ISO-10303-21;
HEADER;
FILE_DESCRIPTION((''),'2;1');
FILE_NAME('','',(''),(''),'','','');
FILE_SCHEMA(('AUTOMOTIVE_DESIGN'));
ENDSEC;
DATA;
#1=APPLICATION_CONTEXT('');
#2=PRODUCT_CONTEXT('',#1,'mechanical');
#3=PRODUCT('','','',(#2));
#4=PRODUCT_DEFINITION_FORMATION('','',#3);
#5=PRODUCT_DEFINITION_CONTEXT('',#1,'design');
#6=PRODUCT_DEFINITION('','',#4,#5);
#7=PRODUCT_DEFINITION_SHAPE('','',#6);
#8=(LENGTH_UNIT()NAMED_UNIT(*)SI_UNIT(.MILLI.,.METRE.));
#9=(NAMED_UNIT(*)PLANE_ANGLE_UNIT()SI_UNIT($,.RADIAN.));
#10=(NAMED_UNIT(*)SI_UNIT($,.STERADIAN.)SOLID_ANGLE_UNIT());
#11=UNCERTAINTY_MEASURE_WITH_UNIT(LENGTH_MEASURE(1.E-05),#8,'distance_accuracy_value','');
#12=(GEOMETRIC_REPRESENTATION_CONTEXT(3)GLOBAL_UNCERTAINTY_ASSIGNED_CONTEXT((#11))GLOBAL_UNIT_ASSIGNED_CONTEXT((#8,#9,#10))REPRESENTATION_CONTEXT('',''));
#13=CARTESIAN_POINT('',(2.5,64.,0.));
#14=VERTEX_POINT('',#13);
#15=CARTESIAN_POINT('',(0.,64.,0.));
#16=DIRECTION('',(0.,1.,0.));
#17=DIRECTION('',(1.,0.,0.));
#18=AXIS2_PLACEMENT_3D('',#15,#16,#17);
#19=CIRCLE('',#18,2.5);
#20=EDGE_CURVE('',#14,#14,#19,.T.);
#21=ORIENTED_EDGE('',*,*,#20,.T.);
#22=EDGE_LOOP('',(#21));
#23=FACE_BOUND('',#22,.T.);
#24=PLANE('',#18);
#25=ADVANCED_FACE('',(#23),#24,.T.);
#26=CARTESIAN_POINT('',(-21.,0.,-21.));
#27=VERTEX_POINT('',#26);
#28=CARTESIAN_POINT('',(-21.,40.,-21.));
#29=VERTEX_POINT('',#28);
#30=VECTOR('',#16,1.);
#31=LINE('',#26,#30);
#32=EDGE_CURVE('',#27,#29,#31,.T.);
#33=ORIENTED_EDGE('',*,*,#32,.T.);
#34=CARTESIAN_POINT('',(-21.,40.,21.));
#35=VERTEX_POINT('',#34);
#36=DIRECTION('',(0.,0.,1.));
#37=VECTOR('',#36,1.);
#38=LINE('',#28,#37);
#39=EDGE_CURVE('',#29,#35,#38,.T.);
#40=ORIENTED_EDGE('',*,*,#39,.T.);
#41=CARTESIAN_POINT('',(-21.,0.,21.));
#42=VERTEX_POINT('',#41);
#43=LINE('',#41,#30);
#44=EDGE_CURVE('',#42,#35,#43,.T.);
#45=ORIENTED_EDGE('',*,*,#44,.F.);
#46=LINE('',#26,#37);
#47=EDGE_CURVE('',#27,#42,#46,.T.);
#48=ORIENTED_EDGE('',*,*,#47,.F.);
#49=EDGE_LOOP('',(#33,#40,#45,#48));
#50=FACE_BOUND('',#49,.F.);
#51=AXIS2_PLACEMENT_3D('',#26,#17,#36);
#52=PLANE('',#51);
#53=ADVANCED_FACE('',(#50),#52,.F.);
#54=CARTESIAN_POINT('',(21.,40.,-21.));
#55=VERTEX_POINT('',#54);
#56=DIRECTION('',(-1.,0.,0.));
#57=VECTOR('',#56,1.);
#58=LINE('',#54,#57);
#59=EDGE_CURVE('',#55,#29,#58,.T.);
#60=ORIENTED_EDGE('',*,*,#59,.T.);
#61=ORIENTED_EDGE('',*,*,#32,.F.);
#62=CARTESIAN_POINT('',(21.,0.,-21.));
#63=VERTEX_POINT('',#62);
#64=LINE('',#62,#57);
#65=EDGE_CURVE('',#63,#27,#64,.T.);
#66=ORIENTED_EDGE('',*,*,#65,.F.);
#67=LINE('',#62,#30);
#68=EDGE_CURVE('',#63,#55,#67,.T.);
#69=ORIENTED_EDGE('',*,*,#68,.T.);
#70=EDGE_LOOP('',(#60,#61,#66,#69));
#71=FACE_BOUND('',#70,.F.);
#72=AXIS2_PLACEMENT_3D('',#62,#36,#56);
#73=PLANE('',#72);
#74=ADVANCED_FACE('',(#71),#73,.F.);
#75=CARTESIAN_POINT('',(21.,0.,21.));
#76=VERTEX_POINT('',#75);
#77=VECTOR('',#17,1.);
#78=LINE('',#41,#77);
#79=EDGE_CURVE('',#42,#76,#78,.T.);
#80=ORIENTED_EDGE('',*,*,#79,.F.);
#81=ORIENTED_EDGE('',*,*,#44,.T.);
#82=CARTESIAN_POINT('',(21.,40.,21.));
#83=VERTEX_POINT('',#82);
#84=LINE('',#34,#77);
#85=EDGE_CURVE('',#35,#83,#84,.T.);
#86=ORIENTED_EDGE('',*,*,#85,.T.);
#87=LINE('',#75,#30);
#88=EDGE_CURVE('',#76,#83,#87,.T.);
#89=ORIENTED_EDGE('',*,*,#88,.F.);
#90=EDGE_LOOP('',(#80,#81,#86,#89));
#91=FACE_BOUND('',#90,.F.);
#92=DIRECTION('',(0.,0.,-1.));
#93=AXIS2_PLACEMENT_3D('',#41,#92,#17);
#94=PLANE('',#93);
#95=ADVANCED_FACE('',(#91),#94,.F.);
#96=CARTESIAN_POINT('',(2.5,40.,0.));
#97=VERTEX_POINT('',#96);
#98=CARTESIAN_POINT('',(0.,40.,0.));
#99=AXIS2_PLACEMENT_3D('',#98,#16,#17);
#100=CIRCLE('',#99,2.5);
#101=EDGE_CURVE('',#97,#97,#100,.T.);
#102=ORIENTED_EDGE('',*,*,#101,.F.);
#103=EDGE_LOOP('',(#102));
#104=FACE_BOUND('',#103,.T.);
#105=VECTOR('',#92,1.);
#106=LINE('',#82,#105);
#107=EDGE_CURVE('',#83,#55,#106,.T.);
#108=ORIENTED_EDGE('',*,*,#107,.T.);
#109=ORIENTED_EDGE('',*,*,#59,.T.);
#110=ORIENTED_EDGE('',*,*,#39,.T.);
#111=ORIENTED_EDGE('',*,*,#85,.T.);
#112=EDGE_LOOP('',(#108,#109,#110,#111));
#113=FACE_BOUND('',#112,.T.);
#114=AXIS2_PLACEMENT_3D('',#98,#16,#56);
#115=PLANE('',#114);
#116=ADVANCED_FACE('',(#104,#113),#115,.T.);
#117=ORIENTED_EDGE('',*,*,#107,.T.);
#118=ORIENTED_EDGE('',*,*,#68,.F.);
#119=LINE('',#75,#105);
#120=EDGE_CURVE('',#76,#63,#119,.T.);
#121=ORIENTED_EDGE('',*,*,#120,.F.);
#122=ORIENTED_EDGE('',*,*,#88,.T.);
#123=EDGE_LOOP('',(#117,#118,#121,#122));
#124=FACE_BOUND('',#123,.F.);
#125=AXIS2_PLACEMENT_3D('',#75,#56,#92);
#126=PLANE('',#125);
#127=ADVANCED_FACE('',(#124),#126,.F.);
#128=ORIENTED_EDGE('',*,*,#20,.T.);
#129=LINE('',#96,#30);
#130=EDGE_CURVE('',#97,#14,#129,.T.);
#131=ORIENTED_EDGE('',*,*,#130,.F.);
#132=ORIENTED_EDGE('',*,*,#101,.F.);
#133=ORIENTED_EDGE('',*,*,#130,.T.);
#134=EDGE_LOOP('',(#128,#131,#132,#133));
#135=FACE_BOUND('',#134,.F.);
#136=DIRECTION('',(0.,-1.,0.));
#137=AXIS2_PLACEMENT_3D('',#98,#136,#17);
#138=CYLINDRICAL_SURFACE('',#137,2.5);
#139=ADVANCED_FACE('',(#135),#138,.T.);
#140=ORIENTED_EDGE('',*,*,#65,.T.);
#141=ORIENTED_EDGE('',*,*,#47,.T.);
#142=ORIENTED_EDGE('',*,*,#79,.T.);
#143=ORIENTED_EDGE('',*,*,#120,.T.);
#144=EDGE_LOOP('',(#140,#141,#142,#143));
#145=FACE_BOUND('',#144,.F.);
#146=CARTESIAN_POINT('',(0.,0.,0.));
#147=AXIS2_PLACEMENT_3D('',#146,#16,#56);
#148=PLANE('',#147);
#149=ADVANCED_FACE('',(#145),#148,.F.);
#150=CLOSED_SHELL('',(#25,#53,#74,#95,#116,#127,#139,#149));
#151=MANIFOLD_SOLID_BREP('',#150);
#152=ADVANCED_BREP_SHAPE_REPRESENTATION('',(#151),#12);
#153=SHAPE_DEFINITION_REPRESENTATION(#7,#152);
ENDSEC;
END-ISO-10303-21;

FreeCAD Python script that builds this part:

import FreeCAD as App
import Part
import Sketcher
from FreeCAD import Vector
Q = App.Units.Quantity


def add_polygon(sketch, points):
    """Adds a closed chain of lines whose ends are joined by coincident constraints."""
    first, n = sketch.GeometryCount, len(points)
    for a, b in zip(points, points[1:] + points[:1]):
        sketch.addGeometry(Part.LineSegment(App.Vector(*a, 0), App.Vector(*b, 0)), False)
    for i in range(n):
        sketch.addConstraint(Sketcher.Constraint("Coincident", first + i, 2, first + (i + 1) % n, 1))

doc = App.newDocument("Part")
body = doc.addObject("PartDesign::Body", "Body")

sketch1 = body.newObject("Sketcher::SketchObject", "Sketch")
sketch1.AttachmentSupport = (doc.getObject("XZ_Plane"), [""])
sketch1.MapMode = "FlatFace"
add_polygon(sketch1, [(-21, 21), (21, 21), (21, -21), (-21, -21)])
sketch1.addConstraint([
    Sketcher.Constraint("Horizontal", 0),
    Sketcher.Constraint("Vertical", 1),
    Sketcher.Constraint("Horizontal", 2),
    Sketcher.Constraint("Vertical", 3),
    Sketcher.Constraint("Symmetric", 0, 2, 2, 2, -1, 1),
    Sketcher.Constraint("Equal", 2, 1),
    Sketcher.Constraint("DistanceX", 0, 1, 0, 2, Q("42 mm")),
])
pad1 = body.newObject("PartDesign::Pad", "Pad")
pad1.Profile = sketch1
pad1.Length = 40
pad1.Reversed = True

sketch2 = body.newObject("Sketcher::SketchObject", "Sketch001")
sketch2.AttachmentSupport = (doc.getObject("XZ_Plane"), [""])
sketch2.MapMode = "FlatFace"
sketch2.AttachmentOffset = App.Placement(Vector(0, 0, -40), App.Rotation())
sketch2.addGeometry(Part.Circle(Vector(0, 0, 0), Vector(0, 0, 1), 2.5), False)
sketch2.addConstraint([
    Sketcher.Constraint("Coincident", 0, 3, -1, 1),
    Sketcher.Constraint("Diameter", 0, Q("5 mm")),
])
pad2 = body.newObject("PartDesign::Pad", "Pad001")
pad2.Profile = sketch2
pad2.Length = 24
pad2.Reversed = True

doc.recompute()
